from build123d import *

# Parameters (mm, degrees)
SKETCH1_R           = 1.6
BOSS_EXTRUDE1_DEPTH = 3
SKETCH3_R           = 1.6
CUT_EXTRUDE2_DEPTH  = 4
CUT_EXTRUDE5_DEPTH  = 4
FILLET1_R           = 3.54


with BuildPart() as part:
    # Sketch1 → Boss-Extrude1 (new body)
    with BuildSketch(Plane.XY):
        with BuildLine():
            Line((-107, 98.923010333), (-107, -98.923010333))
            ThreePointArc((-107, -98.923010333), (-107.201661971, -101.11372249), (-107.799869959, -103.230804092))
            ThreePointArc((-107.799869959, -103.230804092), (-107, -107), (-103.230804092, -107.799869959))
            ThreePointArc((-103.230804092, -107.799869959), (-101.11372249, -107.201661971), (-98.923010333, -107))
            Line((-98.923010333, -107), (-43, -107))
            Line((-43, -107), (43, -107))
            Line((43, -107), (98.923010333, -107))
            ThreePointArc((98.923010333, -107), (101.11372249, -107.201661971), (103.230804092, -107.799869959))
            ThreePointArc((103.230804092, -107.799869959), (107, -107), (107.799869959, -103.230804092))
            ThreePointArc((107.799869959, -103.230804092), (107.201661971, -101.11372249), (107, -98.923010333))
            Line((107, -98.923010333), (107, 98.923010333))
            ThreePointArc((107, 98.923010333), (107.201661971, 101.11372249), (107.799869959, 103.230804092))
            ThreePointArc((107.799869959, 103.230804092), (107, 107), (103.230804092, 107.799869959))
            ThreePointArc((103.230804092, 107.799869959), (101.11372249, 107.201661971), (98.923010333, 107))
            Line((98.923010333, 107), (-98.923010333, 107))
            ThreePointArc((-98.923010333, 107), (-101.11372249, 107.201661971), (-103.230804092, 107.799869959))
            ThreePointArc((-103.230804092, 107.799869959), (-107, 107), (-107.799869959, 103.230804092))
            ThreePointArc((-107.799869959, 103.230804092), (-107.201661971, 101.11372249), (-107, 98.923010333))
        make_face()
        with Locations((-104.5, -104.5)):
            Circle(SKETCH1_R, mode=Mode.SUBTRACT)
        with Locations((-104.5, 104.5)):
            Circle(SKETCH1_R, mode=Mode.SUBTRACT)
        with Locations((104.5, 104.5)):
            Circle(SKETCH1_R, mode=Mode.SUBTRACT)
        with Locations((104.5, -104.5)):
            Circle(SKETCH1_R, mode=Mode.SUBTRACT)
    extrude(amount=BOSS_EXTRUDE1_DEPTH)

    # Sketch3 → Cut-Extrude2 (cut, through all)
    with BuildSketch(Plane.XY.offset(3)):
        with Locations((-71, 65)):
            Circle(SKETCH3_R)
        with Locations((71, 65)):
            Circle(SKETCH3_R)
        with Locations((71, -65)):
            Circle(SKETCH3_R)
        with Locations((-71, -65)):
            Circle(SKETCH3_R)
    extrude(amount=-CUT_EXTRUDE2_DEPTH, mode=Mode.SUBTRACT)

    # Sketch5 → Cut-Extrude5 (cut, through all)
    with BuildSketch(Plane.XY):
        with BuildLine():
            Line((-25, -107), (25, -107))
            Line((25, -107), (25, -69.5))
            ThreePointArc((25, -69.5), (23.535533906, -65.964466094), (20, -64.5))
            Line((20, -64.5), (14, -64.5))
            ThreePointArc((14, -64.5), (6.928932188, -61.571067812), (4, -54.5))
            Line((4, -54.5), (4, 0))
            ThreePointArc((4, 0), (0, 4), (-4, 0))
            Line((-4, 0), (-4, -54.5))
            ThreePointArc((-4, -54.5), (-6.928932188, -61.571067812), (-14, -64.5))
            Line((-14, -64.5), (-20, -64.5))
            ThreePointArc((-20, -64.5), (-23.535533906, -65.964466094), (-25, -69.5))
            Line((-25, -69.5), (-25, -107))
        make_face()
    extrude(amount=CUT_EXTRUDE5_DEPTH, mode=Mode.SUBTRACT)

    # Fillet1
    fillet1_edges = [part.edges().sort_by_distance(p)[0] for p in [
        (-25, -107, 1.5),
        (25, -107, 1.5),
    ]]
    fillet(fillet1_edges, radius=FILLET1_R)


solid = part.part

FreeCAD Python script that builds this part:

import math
import FreeCAD as App
import Part
import Sketcher


def edges_at(feature, points):
    """Names of the edges that pass closest to the given points."""
    edges = feature.Shape.Edges
    near = lambda p: min(range(len(edges)), key=lambda i: edges[i].distToShape(Part.Vertex(*p))[0])
    return sorted({f"Edge{near(p) + 1}" for p in points})

doc = App.newDocument("Part")
body = doc.addObject("PartDesign::Body", "Body")

sketch1 = body.newObject("Sketcher::SketchObject", "Sketch")
sketch1.AttachmentSupport = (doc.getObject("XY_Plane"), [""])
sketch1.MapMode = "FlatFace"
sketch1.addGeometry([
    Part.LineSegment(App.Vector(-107, 98.9, 0), App.Vector(-107, -98.9, 0)),
    Part.ArcOfCircle(Part.Circle(App.Vector(-119, -98.9, 0), App.Vector(0, 0, 1), 12), math.radians(-21), math.radians(0)),
    Part.ArcOfCircle(Part.Circle(App.Vector(-104.5, -104.5, 0), App.Vector(0, 0, 1), 3.5), math.radians(159), math.radians(291)),
    Part.ArcOfCircle(Part.Circle(App.Vector(-98.9, -119, 0), App.Vector(0, 0, 1), 12), math.radians(90), math.radians(111)),
    Part.LineSegment(App.Vector(-98.9, -107, 0), App.Vector(98.9, -107, 0)),
    Part.ArcOfCircle(Part.Circle(App.Vector(98.9, -119, 0), App.Vector(0, 0, 1), 12), math.radians(69), math.radians(90)),
    Part.ArcOfCircle(Part.Circle(App.Vector(104.5, -104.5, 0), App.Vector(0, 0, 1), 3.5), math.radians(-111), math.radians(21)),
    Part.ArcOfCircle(Part.Circle(App.Vector(119, -98.9, 0), App.Vector(0, 0, 1), 12), math.radians(180), math.radians(201)),
    Part.LineSegment(App.Vector(107, -98.9, 0), App.Vector(107, 98.9, 0)),
    Part.ArcOfCircle(Part.Circle(App.Vector(119, 98.9, 0), App.Vector(0, 0, 1), 12), math.radians(159), math.radians(180)),
    Part.ArcOfCircle(Part.Circle(App.Vector(104.5, 104.5, 0), App.Vector(0, 0, 1), 3.5), math.radians(-21), math.radians(111)),
    Part.ArcOfCircle(Part.Circle(App.Vector(98.9, 119, 0), App.Vector(0, 0, 1), 12), math.radians(-90), math.radians(-69)),
    Part.LineSegment(App.Vector(98.9, 107, 0), App.Vector(-98.9, 107, 0)),
    Part.ArcOfCircle(Part.Circle(App.Vector(-98.9, 119, 0), App.Vector(0, 0, 1), 12), math.radians(-111), math.radians(-90)),
    Part.ArcOfCircle(Part.Circle(App.Vector(-104.5, 104.5, 0), App.Vector(0, 0, 1), 3.5), math.radians(69), math.radians(201)),
    Part.ArcOfCircle(Part.Circle(App.Vector(-119, 98.9, 0), App.Vector(0, 0, 1), 12), math.radians(0), math.radians(21)),
    Part.Circle(App.Vector(-104.5, -104.5, 0), App.Vector(0, 0, 1), 1.6),
    Part.Circle(App.Vector(104.5, -104.5, 0), App.Vector(0, 0, 1), 1.6),
    Part.Circle(App.Vector(-104.5, 104.5, 0), App.Vector(0, 0, 1), 1.6),
    Part.Circle(App.Vector(104.5, 104.5, 0), App.Vector(0, 0, 1), 1.6),
], False)
sketch1.addConstraint([
    Sketcher.Constraint("Tangent", 0, 2, 1, 2),
    Sketcher.Constraint("Tangent", 1, 1, 2, 1),
    Sketcher.Constraint("Tangent", 2, 2, 3, 2),
    Sketcher.Constraint("Tangent", 3, 1, 4, 1),
    Sketcher.Constraint("Tangent", 4, 2, 5, 2),
    Sketcher.Constraint("Tangent", 5, 1, 6, 1),
    Sketcher.Constraint("Tangent", 6, 2, 7, 2),
    Sketcher.Constraint("Tangent", 7, 1, 8, 1),
    Sketcher.Constraint("Tangent", 8, 2, 9, 2),
    Sketcher.Constraint("Tangent", 9, 1, 10, 1),
    Sketcher.Constraint("Tangent", 10, 2, 11, 2),
    Sketcher.Constraint("Tangent", 11, 1, 12, 1),
    Sketcher.Constraint("Tangent", 12, 2, 13, 2),
    Sketcher.Constraint("Tangent", 13, 1, 14, 1),
    Sketcher.Constraint("Tangent", 14, 2, 15, 2),
    Sketcher.Constraint("Tangent", 15, 1, 0, 1),
    Sketcher.Constraint("Vertical", 0),
    Sketcher.Constraint("Horizontal", 4),
    Sketcher.Constraint("Vertical", 8),
    Sketcher.Constraint("Horizontal", 12),
    Sketcher.Constraint("Coincident", 16, 3, 2, 3),
    Sketcher.Constraint("Coincident", 17, 3, 6, 3),
    Sketcher.Constraint("Coincident", 18, 3, 14, 3),
    Sketcher.Constraint("Coincident", 19, 3, 10, 3),
    Sketcher.Constraint("Equal", 1, 3),
    Sketcher.Constraint("Equal", 3, 5),
    Sketcher.Constraint("Equal", 2, 6),
    Sketcher.Constraint("Equal", 5, 7),
    Sketcher.Constraint("Equal", 7, 9),
    Sketcher.Constraint("Equal", 6, 10),
    Sketcher.Constraint("Equal", 9, 11),
    Sketcher.Constraint("Equal", 11, 13),
    Sketcher.Constraint("Equal", 10, 14),
    Sketcher.Constraint("Equal", 13, 15),
    Sketcher.Constraint("Equal", 16, 17),
    Sketcher.Constraint("Equal", 17, 18),
    Sketcher.Constraint("Equal", 18, 19),
    Sketcher.Constraint("Symmetric", 1, 3, 9, 3, -1, 1),
    Sketcher.Constraint("Symmetric", 3, 3, 11, 3, -1, 1),
    Sketcher.Constraint("Symmetric", 6, 3, 14, 3, -1, 1),
    Sketcher.Constraint("Symmetric", 2, 3, 6, 3, -2),
    Sketcher.Constraint("Equal", 12, 0),
    Sketcher.Constraint("Radius", 1, 12.0),
    Sketcher.Constraint("Diameter", 16, 3.2),
    Sketcher.Constraint("DistanceX", 1, 3, -1, 1, 119.0),
    Sketcher.Constraint("DistanceY", 3, 3, -1, 1, 119.0),
    Sketcher.Constraint("DistanceX", 2, 3, 6, 3, 209.0),
    Sketcher.Constraint("Radius", 2, 3.535534),
])
pad1 = body.newObject("PartDesign::Pad", "Pad")
pad1.Profile = sketch1
pad1.Length = 3

sketch2 = body.newObject("Sketcher::SketchObject", "Sketch001")
sketch2.AttachmentSupport = (doc.getObject("XY_Plane"), [""])
sketch2.MapMode = "FlatFace"
sketch2.AttachmentOffset = App.Placement(App.Vector(0, 0, 3), App.Rotation())
sketch2.addGeometry([
    Part.Circle(App.Vector(-71, 65, 0), App.Vector(0, 0, 1), 1.6),
    Part.Circle(App.Vector(71, 65, 0), App.Vector(0, 0, 1), 1.6),
    Part.Circle(App.Vector(71, -65, 0), App.Vector(0, 0, 1), 1.6),
    Part.Circle(App.Vector(-71, -65, 0), App.Vector(0, 0, 1), 1.6),
], False)
sketch2.addConstraint([
    Sketcher.Constraint("Equal", 0, 1),
    Sketcher.Constraint("Equal", 1, 2),
    Sketcher.Constraint("Equal", 2, 3),
    Sketcher.Constraint("Symmetric", 0, 3, 2, 3, -1, 1),
    Sketcher.Constraint("Symmetric", 1, 3, 3, 3, -1, 1),
    Sketcher.Constraint("Symmetric", 0, 3, 1, 3, -2),
    Sketcher.Constraint("Diameter", 0, 3.2),
    Sketcher.Constraint("DistanceX", 0, 3, -1, 1, 71.0),
    Sketcher.Constraint("DistanceY", -1, 1, 0, 3, 65.0),
])
pocket1 = body.newObject("PartDesign::Pocket", "Pocket")
pocket1.Profile = sketch2
pocket1.Type = "ThroughAll"

sketch3 = body.newObject("Sketcher::SketchObject", "Sketch002")
sketch3.AttachmentSupport = (doc.getObject("XY_Plane"), [""])
sketch3.MapMode = "FlatFace"
sketch3.addGeometry([
    Part.LineSegment(App.Vector(-25, -107, 0), App.Vector(25, -107, 0)),
    Part.LineSegment(App.Vector(25, -107, 0), App.Vector(25, -69.5, 0)),
    Part.ArcOfCircle(Part.Circle(App.Vector(20, -69.5, 0), App.Vector(0, 0, 1), 5), math.radians(0), math.radians(90)),
    Part.LineSegment(App.Vector(20, -64.5, 0), App.Vector(14, -64.5, 0)),
    Part.ArcOfCircle(Part.Circle(App.Vector(14, -54.5, 0), App.Vector(0, 0, 1), 10), math.radians(180), math.radians(270)),
    Part.LineSegment(App.Vector(4, -54.5, 0), App.Vector(4, 0, 0)),
    Part.ArcOfCircle(Part.Circle(App.Vector(0, 0, 0), App.Vector(0, 0, 1), 4), math.radians(0), math.radians(180)),
    Part.LineSegment(App.Vector(-4, 0, 0), App.Vector(-4, -54.5, 0)),
    Part.ArcOfCircle(Part.Circle(App.Vector(-14, -54.5, 0), App.Vector(0, 0, 1), 10), math.radians(-90), math.radians(0)),
    Part.LineSegment(App.Vector(-14, -64.5, 0), App.Vector(-20, -64.5, 0)),
    Part.ArcOfCircle(Part.Circle(App.Vector(-20, -69.5, 0), App.Vector(0, 0, 1), 5), math.radians(90), math.radians(180)),
    Part.LineSegment(App.Vector(-25, -69.5, 0), App.Vector(-25, -107, 0)),
], False)
sketch3.addConstraint([
    Sketcher.Constraint("Coincident", 0, 2, 1, 1),
    Sketcher.Constraint("Tangent", 1, 2, 2, 1),
    Sketcher.Constraint("Tangent", 2, 2, 3, 1),
    Sketcher.Constraint("Tangent", 3, 2, 4, 2),
    Sketcher.Constraint("Tangent", 4, 1, 5, 1),
    Sketcher.Constraint("Tangent", 5, 2, 6, 1),
    Sketcher.Constraint("Tangent", 6, 2, 7, 1),
    Sketcher.Constraint("Tangent", 7, 2, 8, 2),
    Sketcher.Constraint("Tangent", 8, 1, 9, 1),
    Sketcher.Constraint("Tangent", 9, 2, 10, 1),
    Sketcher.Constraint("Tangent", 10, 2, 11, 1),
    Sketcher.Constraint("Coincident", 11, 2, 0, 1),
    Sketcher.Constraint("Horizontal", 0),
    Sketcher.Constraint("Vertical", 1),
    Sketcher.Constraint("Horizontal", 3),
    Sketcher.Constraint("Vertical", 5),
    Sketcher.Constraint("Vertical", 7),
    Sketcher.Constraint("Horizontal", 9),
    Sketcher.Constraint("Vertical", 11),
    Sketcher.Constraint("Coincident", 6, 3, -1, 1),
    Sketcher.Constraint("Equal", 4, 8),
    Sketcher.Constraint("Equal", 2, 10),
    Sketcher.Constraint("Symmetric", 2, 3, 10, 3, -2),
    Sketcher.Constraint("Radius", 2, 5.0),
    Sketcher.Constraint("Radius", 4, 10.0),
    Sketcher.Constraint("Radius", 6, 4.0),
    Sketcher.Constraint("DistanceX", 0, 1, 0, 2, 50.0),
    Sketcher.Constraint("DistanceY", 1, 1, 1, 2, 37.5),
    Sketcher.Constraint("DistanceY", 5, 1, 5, 2, 54.5),
])
pocket2 = body.newObject("PartDesign::Pocket", "Pocket001")
pocket2.Profile = sketch3
pocket2.Type = "ThroughAll"
pocket2.Reversed = True
doc.recompute()

fillet = body.newObject("PartDesign::Fillet", "Fillet")
fillet.Base = (pocket2, edges_at(pocket2, [(-25, -107, 1.5), (25, -107, 1.5)]))
fillet.Radius = 3.54

doc.recompute()
